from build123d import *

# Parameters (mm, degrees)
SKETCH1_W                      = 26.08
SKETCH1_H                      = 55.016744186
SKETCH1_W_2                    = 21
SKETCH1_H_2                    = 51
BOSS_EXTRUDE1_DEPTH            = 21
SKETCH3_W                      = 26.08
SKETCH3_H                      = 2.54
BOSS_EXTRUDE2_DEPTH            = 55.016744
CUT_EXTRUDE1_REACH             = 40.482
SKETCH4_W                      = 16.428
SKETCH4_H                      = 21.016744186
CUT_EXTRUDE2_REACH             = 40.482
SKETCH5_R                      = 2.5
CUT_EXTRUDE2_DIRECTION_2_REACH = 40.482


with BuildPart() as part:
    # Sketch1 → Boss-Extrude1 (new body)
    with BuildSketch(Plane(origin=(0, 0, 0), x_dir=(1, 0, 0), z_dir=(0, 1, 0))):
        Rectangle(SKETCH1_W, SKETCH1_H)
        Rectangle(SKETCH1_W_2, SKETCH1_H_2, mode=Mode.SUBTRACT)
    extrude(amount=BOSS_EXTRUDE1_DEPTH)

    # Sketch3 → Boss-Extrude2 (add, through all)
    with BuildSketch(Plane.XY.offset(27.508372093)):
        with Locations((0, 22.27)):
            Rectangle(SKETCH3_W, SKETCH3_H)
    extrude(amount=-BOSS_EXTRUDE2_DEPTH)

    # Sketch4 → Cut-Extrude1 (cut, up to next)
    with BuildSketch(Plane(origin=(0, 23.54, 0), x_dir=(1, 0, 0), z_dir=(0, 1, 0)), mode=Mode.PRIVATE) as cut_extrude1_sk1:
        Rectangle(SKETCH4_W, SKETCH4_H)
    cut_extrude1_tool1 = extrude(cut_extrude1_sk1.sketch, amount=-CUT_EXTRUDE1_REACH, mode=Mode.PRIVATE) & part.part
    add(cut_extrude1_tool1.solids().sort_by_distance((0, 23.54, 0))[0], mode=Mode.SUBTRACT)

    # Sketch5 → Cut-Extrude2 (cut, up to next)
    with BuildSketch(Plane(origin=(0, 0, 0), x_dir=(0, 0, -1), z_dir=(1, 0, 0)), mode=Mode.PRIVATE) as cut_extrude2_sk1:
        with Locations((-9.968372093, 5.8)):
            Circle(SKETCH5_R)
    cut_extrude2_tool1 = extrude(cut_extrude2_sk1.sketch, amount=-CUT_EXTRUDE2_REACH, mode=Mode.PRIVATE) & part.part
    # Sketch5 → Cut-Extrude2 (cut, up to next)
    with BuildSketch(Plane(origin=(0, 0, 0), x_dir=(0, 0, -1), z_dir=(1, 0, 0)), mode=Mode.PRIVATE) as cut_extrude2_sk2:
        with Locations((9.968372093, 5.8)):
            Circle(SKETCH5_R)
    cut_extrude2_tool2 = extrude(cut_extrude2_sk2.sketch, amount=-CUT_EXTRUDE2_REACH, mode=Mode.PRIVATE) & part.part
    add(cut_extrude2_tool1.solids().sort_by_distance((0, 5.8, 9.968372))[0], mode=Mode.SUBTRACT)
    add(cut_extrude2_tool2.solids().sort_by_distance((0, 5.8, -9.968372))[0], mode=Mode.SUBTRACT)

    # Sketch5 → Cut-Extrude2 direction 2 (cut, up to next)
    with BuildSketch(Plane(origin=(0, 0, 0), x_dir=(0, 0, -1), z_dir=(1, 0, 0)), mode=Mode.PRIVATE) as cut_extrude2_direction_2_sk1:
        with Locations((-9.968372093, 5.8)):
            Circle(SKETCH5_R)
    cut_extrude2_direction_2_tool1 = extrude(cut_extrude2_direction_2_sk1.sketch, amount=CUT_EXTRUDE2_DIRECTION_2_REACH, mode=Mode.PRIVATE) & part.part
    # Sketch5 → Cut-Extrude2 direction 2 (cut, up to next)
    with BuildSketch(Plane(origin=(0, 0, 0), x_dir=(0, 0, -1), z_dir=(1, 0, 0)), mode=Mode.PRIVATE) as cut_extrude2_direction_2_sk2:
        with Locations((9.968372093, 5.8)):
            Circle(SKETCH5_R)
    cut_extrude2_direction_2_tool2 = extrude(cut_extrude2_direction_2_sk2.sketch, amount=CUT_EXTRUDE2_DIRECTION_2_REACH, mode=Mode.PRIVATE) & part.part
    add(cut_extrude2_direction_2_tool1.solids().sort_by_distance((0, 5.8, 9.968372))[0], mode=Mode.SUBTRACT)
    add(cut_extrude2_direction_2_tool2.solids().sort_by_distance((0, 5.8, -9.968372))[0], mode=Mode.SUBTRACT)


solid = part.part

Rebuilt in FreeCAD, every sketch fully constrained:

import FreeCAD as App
import Part
import Sketcher
Q = App.Units.Quantity


def add_polygon(sketch, points):
    """Adds a closed chain of lines whose ends are joined by coincident constraints."""
    first, n = sketch.GeometryCount, len(points)
    for a, b in zip(points, points[1:] + points[:1]):
        sketch.addGeometry(Part.LineSegment(App.Vector(*a, 0), App.Vector(*b, 0)), False)
    for i in range(n):
        sketch.addConstraint(Sketcher.Constraint("Coincident", first + i, 2, first + (i + 1) % n, 1))

doc = App.newDocument("Part")
body = doc.addObject("PartDesign::Body", "Body")

# Sketch on XZ plane
sketch1 = doc.addObject("Sketcher::SketchObject", "Sketch")
body.addObject(sketch1)
sketch1.AttachmentSupport = (doc.XZ_Plane, [""])
sketch1.MapMode = "FlatFace"
add_polygon(sketch1, [(-13, -28), (-13, 28), (13, 28), (13, -28)])  # lines 0-3
add_polygon(sketch1, [(10, 26), (-10, 26), (-10, -26), (10, -26)])  # lines 4-7
sketch1.addConstraint([
    Sketcher.Constraint("Vertical", 0),
    Sketcher.Constraint("Horizontal", 1),
    Sketcher.Constraint("Vertical", 2),
    Sketcher.Constraint("Horizontal", 3),
    Sketcher.Constraint("Horizontal", 4),
    Sketcher.Constraint("Vertical", 5),
    Sketcher.Constraint("Horizontal", 6),
    Sketcher.Constraint("Vertical", 7),
    Sketcher.Constraint("Symmetric", 0, 2, 2, 2, -1, 1),
    Sketcher.Constraint("Symmetric", 4, 2, 6, 2, -1, 1),
    Sketcher.Constraint("DistanceX", 4, 2, 4, 1, Q("21 mm")),
    Sketcher.Constraint("DistanceY", 5, 2, 5, 1, Q("51 mm")),
    Sketcher.Constraint("DistanceX", 1, 1, 1, 2, Q("26.08 mm")),
    Sketcher.Constraint("DistanceY", 0, 1, 0, 2, Q("55.016744 mm")),
])
pad1 = doc.addObject("PartDesign::Pad", "Pad")
body.addObject(pad1)
pad1.Profile = sketch1
pad1.Length = 21
pad1.Reversed = True

# Sketch on XY plane
sketch2 = doc.addObject("Sketcher::SketchObject", "Sketch001")
body.addObject(sketch2)
sketch2.AttachmentSupport = (doc.XY_Plane, [""])
sketch2.MapMode = "FlatFace"
sketch2.AttachmentOffset = App.Placement(App.Vector(0, 0, 27.508372), App.Rotation())
add_polygon(sketch2, [(-13, 23.5), (-13, 21), (13, 21), (13, 23.5)])  # lines 0-3
sketch2.addConstraint([
    Sketcher.Constraint("Vertical", 0),
    Sketcher.Constraint("Horizontal", 1),
    Sketcher.Constraint("Vertical", 2),
    Sketcher.Constraint("Horizontal", 3),
    Sketcher.Constraint("DistanceY", -1, 1, 0, 2, Q("21 mm")),
    Sketcher.Constraint("DistanceX", 1, 1, 1, 2, Q("26.08 mm")),
    Sketcher.Constraint("DistanceY", 0, 2, 0, 1, Q("2.54 mm")),
    Sketcher.Constraint("DistanceX", 0, 2, -1, 1, Q("13.04 mm")),
])
pad2 = doc.addObject("PartDesign::Pad", "Pad001")
body.addObject(pad2)
pad2.Profile = sketch2
pad2.Length = 55.016744
pad2.Reversed = True

# Sketch on XZ plane
sketch3 = doc.addObject("Sketcher::SketchObject", "Sketch002")
body.addObject(sketch3)
sketch3.AttachmentSupport = (doc.XZ_Plane, [""])
sketch3.MapMode = "FlatFace"
sketch3.AttachmentOffset = App.Placement(App.Vector(0, 0, -23.54), App.Rotation())
add_polygon(sketch3, [(-8, -11), (-8, 11), (8, 11), (8, -11)])  # lines 0-3
sketch3.addConstraint([
    Sketcher.Constraint("Vertical", 0),
    Sketcher.Constraint("Horizontal", 1),
    Sketcher.Constraint("Vertical", 2),
    Sketcher.Constraint("Horizontal", 3),
    Sketcher.Constraint("Symmetric", 0, 2, 2, 2, -1, 1),
    Sketcher.Constraint("DistanceX", 1, 1, 1, 2, Q("16.428 mm")),
    Sketcher.Constraint("DistanceY", 0, 1, 0, 2, Q("21.016744 mm")),
])
pocket1 = doc.addObject("PartDesign::Pocket", "Pocket")
body.addObject(pocket1)
pocket1.Profile = sketch3
pocket1.Type = "UpToFirst"
pocket1.Reversed = True

# Sketch on YZ plane
sketch4 = doc.addObject("Sketcher::SketchObject", "Sketch003")
body.addObject(sketch4)
sketch4.AttachmentSupport = (doc.YZ_Plane, [""])
sketch4.MapMode = "FlatFace"
sketch4.addGeometry(Part.Circle(App.Vector(5.8, 10, 0), App.Vector(0, 0, 1), 2.5), False)
sketch4.addConstraint([
    Sketcher.Constraint("Diameter", 0, Q("5 mm")),
    Sketcher.Constraint("DistanceX", -1, 1, 0, 3, Q("5.8 mm")),
    Sketcher.Constraint("DistanceY", -1, 1, 0, 3, Q("9.968372 mm")),
])
pocket2 = doc.addObject("PartDesign::Pocket", "Pocket001")
body.addObject(pocket2)
pocket2.Profile = sketch4
pocket2.Length = 13.04

# Sketch on YZ plane
sketch5 = doc.addObject("Sketcher::SketchObject", "Sketch004")
body.addObject(sketch5)
sketch5.AttachmentSupport = (doc.YZ_Plane, [""])
sketch5.MapMode = "FlatFace"
sketch5.addGeometry(Part.Circle(App.Vector(5.8, -10, 0), App.Vector(0, 0, 1), 2.5), False)
sketch5.addConstraint([
    Sketcher.Constraint("Diameter", 0, Q("5 mm")),
    Sketcher.Constraint("DistanceX", -1, 1, 0, 3, Q("5.8 mm")),
    Sketcher.Constraint("DistanceY", 0, 3, -1, 1, Q("9.968372 mm")),
])
pocket3 = doc.addObject("PartDesign::Pocket", "Pocket002")
body.addObject(pocket3)
pocket3.Profile = sketch5
pocket3.Length = 13.04

# Sketch on YZ plane
sketch6 = doc.addObject("Sketcher::SketchObject", "Sketch005")
body.addObject(sketch6)
sketch6.AttachmentSupport = (doc.YZ_Plane, [""])
sketch6.MapMode = "FlatFace"
sketch6.addGeometry(Part.Circle(App.Vector(5.8, 10, 0), App.Vector(0, 0, 1), 2.5), False)
sketch6.addConstraint([
    Sketcher.Constraint("Diameter", 0, Q("5 mm")),
    Sketcher.Constraint("DistanceX", -1, 1, 0, 3, Q("5.8 mm")),
    Sketcher.Constraint("DistanceY", -1, 1, 0, 3, Q("9.968372 mm")),
])
pocket4 = doc.addObject("PartDesign::Pocket", "Pocket003")
body.addObject(pocket4)
pocket4.Profile = sketch6
pocket4.Length = 13.04
pocket4.Reversed = True

# Sketch on YZ plane
sketch7 = doc.addObject("Sketcher::SketchObject", "Sketch006")
body.addObject(sketch7)
sketch7.AttachmentSupport = (doc.YZ_Plane, [""])
sketch7.MapMode = "FlatFace"
sketch7.addGeometry(Part.Circle(App.Vector(5.8, -10, 0), App.Vector(0, 0, 1), 2.5), False)
sketch7.addConstraint([
    Sketcher.Constraint("Diameter", 0, Q("5 mm")),
    Sketcher.Constraint("DistanceX", -1, 1, 0, 3, Q("5.8 mm")),
    Sketcher.Constraint("DistanceY", 0, 3, -1, 1, Q("9.968372 mm")),
])
pocket5 = doc.addObject("PartDesign::Pocket", "Pocket004")
body.addObject(pocket5)
pocket5.Profile = sketch7
pocket5.Length = 13.04
pocket5.Reversed = True

doc.recompute()
